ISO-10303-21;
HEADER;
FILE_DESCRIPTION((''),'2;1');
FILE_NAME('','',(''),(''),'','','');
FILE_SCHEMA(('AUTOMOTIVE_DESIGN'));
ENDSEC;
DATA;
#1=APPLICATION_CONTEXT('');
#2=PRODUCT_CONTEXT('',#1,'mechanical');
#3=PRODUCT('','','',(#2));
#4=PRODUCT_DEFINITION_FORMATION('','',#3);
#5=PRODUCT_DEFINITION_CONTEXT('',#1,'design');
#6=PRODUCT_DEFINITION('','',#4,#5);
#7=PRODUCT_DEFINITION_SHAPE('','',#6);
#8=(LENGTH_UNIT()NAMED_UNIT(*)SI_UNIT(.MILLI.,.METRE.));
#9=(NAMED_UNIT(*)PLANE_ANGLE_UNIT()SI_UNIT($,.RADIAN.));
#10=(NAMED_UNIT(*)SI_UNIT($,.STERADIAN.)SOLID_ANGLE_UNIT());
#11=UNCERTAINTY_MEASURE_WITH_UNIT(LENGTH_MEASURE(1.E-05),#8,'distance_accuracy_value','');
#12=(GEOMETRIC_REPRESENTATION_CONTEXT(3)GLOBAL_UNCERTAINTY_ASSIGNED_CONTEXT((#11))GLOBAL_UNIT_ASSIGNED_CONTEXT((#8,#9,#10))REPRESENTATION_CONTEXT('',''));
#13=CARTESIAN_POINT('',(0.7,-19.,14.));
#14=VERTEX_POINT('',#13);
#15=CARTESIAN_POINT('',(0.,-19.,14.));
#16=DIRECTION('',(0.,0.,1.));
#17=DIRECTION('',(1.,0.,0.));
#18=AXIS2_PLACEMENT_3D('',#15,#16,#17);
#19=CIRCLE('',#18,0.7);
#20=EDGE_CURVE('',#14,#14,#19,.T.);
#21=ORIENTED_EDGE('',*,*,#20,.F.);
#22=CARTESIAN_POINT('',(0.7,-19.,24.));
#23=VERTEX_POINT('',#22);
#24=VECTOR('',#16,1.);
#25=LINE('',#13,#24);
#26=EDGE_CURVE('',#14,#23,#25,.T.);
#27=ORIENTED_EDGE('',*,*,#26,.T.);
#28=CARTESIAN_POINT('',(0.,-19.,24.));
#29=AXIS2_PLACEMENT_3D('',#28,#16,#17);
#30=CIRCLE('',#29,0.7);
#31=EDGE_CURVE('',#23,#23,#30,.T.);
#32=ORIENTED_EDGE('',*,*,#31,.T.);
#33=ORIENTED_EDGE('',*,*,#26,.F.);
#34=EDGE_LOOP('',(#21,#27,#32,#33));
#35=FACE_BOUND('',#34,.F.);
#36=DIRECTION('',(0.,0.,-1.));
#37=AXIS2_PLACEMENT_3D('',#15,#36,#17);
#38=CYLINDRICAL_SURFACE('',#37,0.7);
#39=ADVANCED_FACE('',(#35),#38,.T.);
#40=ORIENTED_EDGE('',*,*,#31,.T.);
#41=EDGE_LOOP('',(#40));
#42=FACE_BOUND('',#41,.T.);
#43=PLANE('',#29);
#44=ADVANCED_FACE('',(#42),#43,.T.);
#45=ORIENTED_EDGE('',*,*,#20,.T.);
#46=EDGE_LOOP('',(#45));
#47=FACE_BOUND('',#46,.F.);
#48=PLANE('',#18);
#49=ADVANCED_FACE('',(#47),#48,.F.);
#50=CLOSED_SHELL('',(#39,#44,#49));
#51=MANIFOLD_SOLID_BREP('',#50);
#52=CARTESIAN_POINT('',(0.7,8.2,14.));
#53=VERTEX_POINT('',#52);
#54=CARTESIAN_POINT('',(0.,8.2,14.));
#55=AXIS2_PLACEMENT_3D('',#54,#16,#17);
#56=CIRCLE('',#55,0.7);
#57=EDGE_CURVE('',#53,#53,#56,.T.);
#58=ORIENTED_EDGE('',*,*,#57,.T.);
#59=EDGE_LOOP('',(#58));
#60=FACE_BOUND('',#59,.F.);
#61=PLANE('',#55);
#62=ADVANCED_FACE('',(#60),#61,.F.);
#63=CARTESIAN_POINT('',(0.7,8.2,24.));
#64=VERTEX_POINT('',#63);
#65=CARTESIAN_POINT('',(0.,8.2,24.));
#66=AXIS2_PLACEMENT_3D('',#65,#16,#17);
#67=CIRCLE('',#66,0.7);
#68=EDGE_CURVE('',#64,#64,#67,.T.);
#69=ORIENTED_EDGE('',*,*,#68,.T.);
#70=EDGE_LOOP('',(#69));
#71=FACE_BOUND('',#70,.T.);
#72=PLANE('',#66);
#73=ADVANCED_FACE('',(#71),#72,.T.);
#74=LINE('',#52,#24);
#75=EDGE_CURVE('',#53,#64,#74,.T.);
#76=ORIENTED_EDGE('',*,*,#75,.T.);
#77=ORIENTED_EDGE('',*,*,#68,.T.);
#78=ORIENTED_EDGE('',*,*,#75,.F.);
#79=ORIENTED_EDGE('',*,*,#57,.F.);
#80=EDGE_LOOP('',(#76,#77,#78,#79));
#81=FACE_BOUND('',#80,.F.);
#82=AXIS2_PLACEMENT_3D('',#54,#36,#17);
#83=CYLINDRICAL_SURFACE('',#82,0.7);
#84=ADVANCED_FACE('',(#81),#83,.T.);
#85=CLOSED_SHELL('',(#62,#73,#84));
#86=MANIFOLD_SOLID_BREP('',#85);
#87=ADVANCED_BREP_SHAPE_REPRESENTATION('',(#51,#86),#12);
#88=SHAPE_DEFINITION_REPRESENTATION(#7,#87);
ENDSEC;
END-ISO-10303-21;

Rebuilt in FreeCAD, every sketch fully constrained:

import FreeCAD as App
import Part
import Sketcher

V = App.Vector

doc = App.newDocument("Part")
params = doc.addObject("Spreadsheet::Sheet", "Params")
for row, (alias, value) in enumerate([
    ("sketch1_diameter", "1.4 mm"),
    ("pad1_length", "10 mm"),
    ("sketch2_diameter", "1.4 mm"),
    ("pad2_length", "10 mm"),
], start=1):
    params.set(f"A{row}", alias)
    params.set(f"B{row}", "=" + value)
    params.setAlias(f"B{row}", alias)

body = doc.addObject("PartDesign::Body", "Body")

sketch1 = body.newObject("Sketcher::SketchObject", "Sketch")
sketch1.AttachmentSupport = (doc.getObject("XY_Plane"), [""])
sketch1.MapMode = "FlatFace"
sketch1.AttachmentOffset = App.Placement(V(0, 0, 14), App.Rotation())
sketch1.addGeometry(Part.Circle(V(0, 8.2, 0), V(0, 0, 1), 0.7), False)
sketch1.addConstraint(Sketcher.Constraint("PointOnObject", 0, 3, -2))
sketch1.addConstraint(Sketcher.Constraint("Diameter", 0, 1.4))
sketch1.addConstraint(Sketcher.Constraint("DistanceY", -1, 1, 0, 3, 8.2))
sketch1.setExpression("Constraints[1]", "Params.sketch1_diameter")
pad1 = body.newObject("PartDesign::Pad", "Pad")
pad1.Profile = sketch1
pad1.setExpression("Length", "Params.pad1_length")
body2 = doc.addObject("PartDesign::Body", "Body001")
body2.AllowCompound = True

sketch2 = body2.newObject("Sketcher::SketchObject", "Sketch001")
sketch2.AttachmentSupport = (doc.getObject("XY_Plane001"), [""])
sketch2.MapMode = "FlatFace"
sketch2.AttachmentOffset = App.Placement(V(0, 0, 14), App.Rotation())
sketch2.addGeometry(Part.Circle(V(0, -19, 0), V(0, 0, 1), 0.7), False)
sketch2.addConstraint(Sketcher.Constraint("PointOnObject", 0, 3, -2))
sketch2.addConstraint(Sketcher.Constraint("Diameter", 0, 1.4))
sketch2.addConstraint(Sketcher.Constraint("DistanceY", 0, 3, -1, 1, 19.0))
sketch2.setExpression("Constraints[1]", "Params.sketch2_diameter")
pad2 = body2.newObject("PartDesign::Pad", "Pad001")
pad2.Profile = sketch2
pad2.setExpression("Length", "Params.pad2_length")
doc.recompute()

boolean = body2.newObject("PartDesign::Boolean", "Boolean")
boolean.Type = "Fuse"
boolean.addObjects([body])

doc.recompute()
